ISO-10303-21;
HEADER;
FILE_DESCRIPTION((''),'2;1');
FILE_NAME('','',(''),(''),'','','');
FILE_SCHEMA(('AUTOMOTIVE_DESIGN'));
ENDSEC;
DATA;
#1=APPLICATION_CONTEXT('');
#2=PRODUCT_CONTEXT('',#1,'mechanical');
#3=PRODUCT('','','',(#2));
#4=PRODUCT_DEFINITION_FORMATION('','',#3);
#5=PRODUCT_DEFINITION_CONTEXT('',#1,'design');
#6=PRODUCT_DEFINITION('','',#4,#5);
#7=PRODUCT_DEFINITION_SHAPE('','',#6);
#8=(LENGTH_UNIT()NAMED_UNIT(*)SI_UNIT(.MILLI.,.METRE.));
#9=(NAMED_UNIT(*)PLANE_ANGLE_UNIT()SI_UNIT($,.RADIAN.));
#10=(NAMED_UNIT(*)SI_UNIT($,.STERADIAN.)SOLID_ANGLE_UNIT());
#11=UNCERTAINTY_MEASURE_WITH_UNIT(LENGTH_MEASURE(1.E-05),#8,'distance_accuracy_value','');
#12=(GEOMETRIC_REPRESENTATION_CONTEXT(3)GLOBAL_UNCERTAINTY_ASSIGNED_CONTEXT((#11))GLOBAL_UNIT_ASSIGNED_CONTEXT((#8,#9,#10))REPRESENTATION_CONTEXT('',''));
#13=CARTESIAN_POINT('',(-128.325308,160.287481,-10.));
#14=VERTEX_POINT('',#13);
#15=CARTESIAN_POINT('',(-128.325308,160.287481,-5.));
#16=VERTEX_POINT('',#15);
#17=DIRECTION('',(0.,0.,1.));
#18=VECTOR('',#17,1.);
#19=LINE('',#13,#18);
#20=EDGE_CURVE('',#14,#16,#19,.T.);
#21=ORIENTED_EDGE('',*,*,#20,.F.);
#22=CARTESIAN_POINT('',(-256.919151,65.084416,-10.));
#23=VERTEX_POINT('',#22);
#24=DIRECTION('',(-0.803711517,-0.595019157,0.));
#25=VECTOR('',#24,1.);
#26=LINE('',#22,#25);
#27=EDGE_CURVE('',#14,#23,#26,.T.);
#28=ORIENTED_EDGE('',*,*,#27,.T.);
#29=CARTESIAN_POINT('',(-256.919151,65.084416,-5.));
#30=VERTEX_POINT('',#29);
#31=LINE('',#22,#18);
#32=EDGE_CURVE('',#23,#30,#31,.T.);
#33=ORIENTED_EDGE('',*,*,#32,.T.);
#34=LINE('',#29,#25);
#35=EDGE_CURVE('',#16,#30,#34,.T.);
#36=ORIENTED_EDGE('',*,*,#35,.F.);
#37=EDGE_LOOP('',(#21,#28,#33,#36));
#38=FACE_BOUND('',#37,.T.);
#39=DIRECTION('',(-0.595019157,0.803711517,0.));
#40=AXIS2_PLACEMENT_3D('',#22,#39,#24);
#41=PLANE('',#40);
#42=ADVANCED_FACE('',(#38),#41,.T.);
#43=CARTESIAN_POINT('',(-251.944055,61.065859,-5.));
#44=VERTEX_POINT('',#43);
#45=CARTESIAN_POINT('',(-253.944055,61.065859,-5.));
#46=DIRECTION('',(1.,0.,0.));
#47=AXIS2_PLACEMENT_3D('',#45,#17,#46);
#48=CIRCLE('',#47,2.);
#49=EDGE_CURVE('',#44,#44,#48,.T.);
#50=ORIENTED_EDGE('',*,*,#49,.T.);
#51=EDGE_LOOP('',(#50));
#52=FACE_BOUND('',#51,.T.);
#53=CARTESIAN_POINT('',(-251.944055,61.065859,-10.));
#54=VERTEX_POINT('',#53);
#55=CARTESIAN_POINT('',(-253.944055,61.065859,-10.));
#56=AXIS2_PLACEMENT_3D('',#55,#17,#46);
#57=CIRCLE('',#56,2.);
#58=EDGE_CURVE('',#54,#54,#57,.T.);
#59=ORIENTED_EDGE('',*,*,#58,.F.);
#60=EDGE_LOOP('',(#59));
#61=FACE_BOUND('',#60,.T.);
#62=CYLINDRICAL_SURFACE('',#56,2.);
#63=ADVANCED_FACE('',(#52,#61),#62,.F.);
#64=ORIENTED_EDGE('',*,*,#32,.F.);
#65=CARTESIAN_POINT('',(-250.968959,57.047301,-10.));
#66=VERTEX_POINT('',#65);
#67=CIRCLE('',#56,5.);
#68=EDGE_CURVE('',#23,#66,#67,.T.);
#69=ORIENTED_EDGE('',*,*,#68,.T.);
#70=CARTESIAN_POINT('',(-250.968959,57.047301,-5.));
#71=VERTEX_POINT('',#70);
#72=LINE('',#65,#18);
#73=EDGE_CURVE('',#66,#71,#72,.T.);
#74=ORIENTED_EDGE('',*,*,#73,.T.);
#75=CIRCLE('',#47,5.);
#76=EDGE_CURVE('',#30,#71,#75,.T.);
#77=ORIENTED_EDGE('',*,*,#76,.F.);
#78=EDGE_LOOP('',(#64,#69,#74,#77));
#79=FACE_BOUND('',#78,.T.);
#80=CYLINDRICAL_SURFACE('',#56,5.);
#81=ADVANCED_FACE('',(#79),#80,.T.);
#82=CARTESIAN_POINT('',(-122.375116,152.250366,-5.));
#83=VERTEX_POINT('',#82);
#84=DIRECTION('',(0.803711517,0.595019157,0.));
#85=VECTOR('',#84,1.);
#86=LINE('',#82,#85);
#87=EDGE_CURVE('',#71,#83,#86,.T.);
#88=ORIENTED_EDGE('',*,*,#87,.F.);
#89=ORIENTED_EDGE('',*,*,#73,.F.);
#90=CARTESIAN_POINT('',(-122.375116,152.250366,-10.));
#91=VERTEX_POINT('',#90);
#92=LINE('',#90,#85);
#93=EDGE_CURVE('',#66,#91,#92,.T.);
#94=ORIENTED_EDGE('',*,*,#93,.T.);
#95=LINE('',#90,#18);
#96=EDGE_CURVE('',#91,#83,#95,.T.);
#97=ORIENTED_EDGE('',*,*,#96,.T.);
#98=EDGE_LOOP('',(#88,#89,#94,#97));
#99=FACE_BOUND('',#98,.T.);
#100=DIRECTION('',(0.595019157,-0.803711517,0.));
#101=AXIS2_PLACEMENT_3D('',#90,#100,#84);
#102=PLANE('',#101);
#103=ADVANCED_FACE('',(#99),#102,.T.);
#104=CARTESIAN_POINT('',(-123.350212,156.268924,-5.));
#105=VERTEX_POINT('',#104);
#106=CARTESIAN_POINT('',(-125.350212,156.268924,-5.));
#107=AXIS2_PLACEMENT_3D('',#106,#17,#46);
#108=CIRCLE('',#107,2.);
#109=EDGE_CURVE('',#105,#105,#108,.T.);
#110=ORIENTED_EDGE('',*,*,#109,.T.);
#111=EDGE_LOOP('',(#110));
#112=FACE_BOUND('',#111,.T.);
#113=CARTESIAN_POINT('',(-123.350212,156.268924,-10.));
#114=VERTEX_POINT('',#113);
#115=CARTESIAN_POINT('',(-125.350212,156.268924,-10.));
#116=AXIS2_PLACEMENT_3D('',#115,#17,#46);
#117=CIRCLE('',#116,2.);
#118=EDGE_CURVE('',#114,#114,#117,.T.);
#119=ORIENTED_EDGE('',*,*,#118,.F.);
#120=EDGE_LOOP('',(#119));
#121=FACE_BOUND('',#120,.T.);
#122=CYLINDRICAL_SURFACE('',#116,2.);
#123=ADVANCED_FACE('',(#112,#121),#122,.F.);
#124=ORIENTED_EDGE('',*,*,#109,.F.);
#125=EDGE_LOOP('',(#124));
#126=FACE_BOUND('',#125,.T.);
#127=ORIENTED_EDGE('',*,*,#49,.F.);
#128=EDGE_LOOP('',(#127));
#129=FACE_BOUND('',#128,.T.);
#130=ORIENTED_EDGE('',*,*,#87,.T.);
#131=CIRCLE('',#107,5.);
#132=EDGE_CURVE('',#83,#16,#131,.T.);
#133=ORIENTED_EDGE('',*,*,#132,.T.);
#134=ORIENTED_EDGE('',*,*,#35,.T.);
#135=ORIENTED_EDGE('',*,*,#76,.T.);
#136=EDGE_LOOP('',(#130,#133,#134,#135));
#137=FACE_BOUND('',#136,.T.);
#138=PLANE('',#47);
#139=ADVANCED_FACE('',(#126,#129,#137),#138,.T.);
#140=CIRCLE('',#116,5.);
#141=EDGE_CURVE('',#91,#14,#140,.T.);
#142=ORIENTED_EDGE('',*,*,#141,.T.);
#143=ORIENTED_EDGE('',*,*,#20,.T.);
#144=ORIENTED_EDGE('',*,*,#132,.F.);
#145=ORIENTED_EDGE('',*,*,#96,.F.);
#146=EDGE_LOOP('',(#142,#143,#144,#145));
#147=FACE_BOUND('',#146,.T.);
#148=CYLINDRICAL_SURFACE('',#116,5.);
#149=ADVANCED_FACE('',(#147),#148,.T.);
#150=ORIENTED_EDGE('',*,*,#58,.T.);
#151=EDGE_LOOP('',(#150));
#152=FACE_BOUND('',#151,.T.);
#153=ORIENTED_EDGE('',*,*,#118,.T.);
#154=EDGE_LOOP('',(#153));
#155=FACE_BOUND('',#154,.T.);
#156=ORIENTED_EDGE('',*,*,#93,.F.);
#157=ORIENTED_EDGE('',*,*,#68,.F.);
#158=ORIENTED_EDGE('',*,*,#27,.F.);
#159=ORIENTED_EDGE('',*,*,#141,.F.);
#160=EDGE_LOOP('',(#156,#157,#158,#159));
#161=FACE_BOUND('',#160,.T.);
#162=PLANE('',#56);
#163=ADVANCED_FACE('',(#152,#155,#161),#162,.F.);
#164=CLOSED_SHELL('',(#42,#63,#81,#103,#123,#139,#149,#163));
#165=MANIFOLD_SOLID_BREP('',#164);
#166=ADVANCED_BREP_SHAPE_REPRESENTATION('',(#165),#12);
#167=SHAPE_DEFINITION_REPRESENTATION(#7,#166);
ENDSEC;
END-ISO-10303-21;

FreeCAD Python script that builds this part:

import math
import FreeCAD as App
import Part
import Sketcher

doc = App.newDocument("Part")
body = doc.addObject("PartDesign::Body", "Body")

sketch1 = body.newObject("Sketcher::SketchObject", "Sketch")
sketch1.AttachmentSupport = (doc.getObject("XY_Plane"), [""])
sketch1.MapMode = "FlatFace"
sketch1.AttachmentOffset = App.Placement(App.Vector(0, 0, -5), App.Rotation())
sketch1.addGeometry([
    Part.LineSegment(App.Vector(-128.325308, 160.287481, 0), App.Vector(-256.919151, 65.084416, 0)),
    Part.ArcOfCircle(Part.Circle(App.Vector(-253.944055, 61.065859, 0), App.Vector(0, 0, 1), 5), math.radians(126.513998), math.radians(306.513998)),
    Part.LineSegment(App.Vector(-250.968959, 57.047301, 0), App.Vector(-122.375116, 152.250366, 0)),
    Part.ArcOfCircle(Part.Circle(App.Vector(-125.350212, 156.268924, 0), App.Vector(0, 0, 1), 5), math.radians(-53.486002), math.radians(126.513998)),
    Part.Circle(App.Vector(-253.944055, 61.065859, 0), App.Vector(0, 0, 1), 2),
    Part.Circle(App.Vector(-125.350212, 156.268924, 0), App.Vector(0, 0, 1), 2),
], False)
sketch1.addConstraint([
    Sketcher.Constraint("Tangent", 0, 2, 1, 1),
    Sketcher.Constraint("Tangent", 1, 2, 2, 1),
    Sketcher.Constraint("Tangent", 2, 2, 3, 1),
    Sketcher.Constraint("Tangent", 3, 2, 0, 1),
    Sketcher.Constraint("Coincident", 4, 3, 1, 3),
    Sketcher.Constraint("Coincident", 5, 3, 3, 3),
    Sketcher.Constraint("Equal", 1, 3),
    Sketcher.Constraint("Equal", 4, 5),
    Sketcher.Constraint("Diameter", 4, 4.0),
    Sketcher.Constraint("Radius", 1, 5.0),
    Sketcher.Constraint("Distance", 0, 160.0),
    Sketcher.Constraint("DistanceY", -1, 1, 1, 2, 57.047301),
    Sketcher.Constraint("DistanceY", -1, 1, 1, 3, 61.065859),
    Sketcher.Constraint("DistanceX", 0, 2, -1, 1, 256.919151),
])
pad1 = body.newObject("PartDesign::Pad", "Pad")
pad1.Profile = sketch1
pad1.Length = 5
pad1.Reversed = True

doc.recompute()
